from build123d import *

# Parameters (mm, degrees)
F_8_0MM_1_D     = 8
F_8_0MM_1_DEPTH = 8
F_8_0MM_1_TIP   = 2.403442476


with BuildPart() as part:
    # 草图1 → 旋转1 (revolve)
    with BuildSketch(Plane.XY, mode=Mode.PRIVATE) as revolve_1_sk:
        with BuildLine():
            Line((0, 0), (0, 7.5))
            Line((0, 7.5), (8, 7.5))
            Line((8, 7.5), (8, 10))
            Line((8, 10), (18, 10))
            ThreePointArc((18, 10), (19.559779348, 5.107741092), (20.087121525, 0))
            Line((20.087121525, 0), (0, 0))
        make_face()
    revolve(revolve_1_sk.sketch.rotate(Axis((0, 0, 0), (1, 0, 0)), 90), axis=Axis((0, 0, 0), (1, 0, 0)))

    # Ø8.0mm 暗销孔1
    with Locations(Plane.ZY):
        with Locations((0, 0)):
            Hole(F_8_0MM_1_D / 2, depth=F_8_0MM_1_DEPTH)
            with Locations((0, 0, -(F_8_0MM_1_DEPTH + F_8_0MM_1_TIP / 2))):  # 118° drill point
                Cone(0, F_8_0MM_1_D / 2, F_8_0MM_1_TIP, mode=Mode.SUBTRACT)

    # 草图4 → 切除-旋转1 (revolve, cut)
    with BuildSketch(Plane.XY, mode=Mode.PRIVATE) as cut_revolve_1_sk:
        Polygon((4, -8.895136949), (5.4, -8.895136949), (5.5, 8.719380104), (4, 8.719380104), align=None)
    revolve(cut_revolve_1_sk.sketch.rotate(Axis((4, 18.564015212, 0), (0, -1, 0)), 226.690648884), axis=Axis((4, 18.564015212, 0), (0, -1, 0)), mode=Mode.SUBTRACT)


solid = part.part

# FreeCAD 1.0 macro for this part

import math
import FreeCAD as App
import Part
import Sketcher

doc = App.newDocument("Part")
body = doc.addObject("PartDesign::Body", "Body")

sketch1 = body.newObject("Sketcher::SketchObject", "Sketch")
sketch1.AttachmentSupport = (doc.getObject("XY_Plane"), [""])
sketch1.MapMode = "FlatFace"
sketch1.addGeometry([
    Part.LineSegment(App.Vector(0, 7.5, 0), App.Vector(0, 0, 0)),
    Part.LineSegment(App.Vector(0, 0, 0), App.Vector(20.1, 0, 0)),
    Part.ArcOfCircle(Part.Circle(App.Vector(-4.9, 0, 0), App.Vector(0, 0, 1), 25), math.radians(0), math.radians(24)),
    Part.LineSegment(App.Vector(18, 10, 0), App.Vector(8, 10, 0)),
    Part.LineSegment(App.Vector(8, 10, 0), App.Vector(8, 7.5, 0)),
    Part.LineSegment(App.Vector(8, 7.5, 0), App.Vector(0, 7.5, 0)),
], False)
sketch1.addConstraint([
    Sketcher.Constraint("Coincident", 0, 2, 1, 1),
    Sketcher.Constraint("Coincident", 1, 2, 2, 1),
    Sketcher.Constraint("Coincident", 2, 2, 3, 1),
    Sketcher.Constraint("Coincident", 3, 2, 4, 1),
    Sketcher.Constraint("Coincident", 4, 2, 5, 1),
    Sketcher.Constraint("Coincident", 5, 2, 0, 1),
    Sketcher.Constraint("Vertical", 0),
    Sketcher.Constraint("Horizontal", 1),
    Sketcher.Constraint("Horizontal", 3),
    Sketcher.Constraint("Vertical", 4),
    Sketcher.Constraint("Horizontal", 5),
    Sketcher.Constraint("Coincident", 0, 2, -1, 1),
    Sketcher.Constraint("PointOnObject", 2, 3, -1),
    Sketcher.Constraint("Radius", 2, 25.0),
    Sketcher.Constraint("DistanceX", 3, 2, 3, 1, 10.0),
    Sketcher.Constraint("DistanceX", 5, 2, 5, 1, 8.0),
    Sketcher.Constraint("DistanceY", 0, 2, 0, 1, 7.5),
    Sketcher.Constraint("DistanceY", 4, 2, 4, 1, 2.5),
])
revolution = body.newObject("PartDesign::Revolution", "Revolution")
revolution.Profile = sketch1
revolution.ReferenceAxis = (sketch1, ["H_Axis"])
revolution.Angle = 360

sketch2 = body.newObject("Sketcher::SketchObject", "Sketch001")
sketch2.AttachmentSupport = (doc.getObject("YZ_Plane"), [""])
sketch2.MapMode = "FlatFace"
sketch2.addGeometry(Part.Circle(App.Vector(0, 0, 0), App.Vector(0, 0, 1), 4), False)
sketch2.addConstraint([
    Sketcher.Constraint("Coincident", 0, 3, -1, 1),
    Sketcher.Constraint("Diameter", 0, 8.0),
])
doc.recompute()
hole = body.newObject("PartDesign::Hole", "Hole")
hole.Profile = sketch2
hole.ThreadType = "None"
hole.Diameter = 8
hole.DepthType = "Dimension"
hole.Depth = 8
hole.DrillPoint = "Angled"
hole.DrillPointAngle = 118
hole.Reversed = True

sketch3 = body.newObject("Sketcher::SketchObject", "Sketch002")
sketch3.AttachmentSupport = (doc.getObject("XY_Plane"), [""])
sketch3.MapMode = "FlatFace"
sketch3.addGeometry([
    Part.LineSegment(App.Vector(4, -8.9, 0), App.Vector(5.4, -8.9, 0)),
    Part.LineSegment(App.Vector(5.4, -8.9, 0), App.Vector(5.5, 8.7, 0)),
    Part.LineSegment(App.Vector(5.5, 8.7, 0), App.Vector(4, 8.7, 0)),
    Part.LineSegment(App.Vector(4, 8.7, 0), App.Vector(4, -8.9, 0)),
], False)
sketch3.addGeometry(Part.LineSegment(App.Vector(4, 8.7, 0), App.Vector(4, -8.9, 0)), True)
sketch3.addConstraint([
    Sketcher.Constraint("Coincident", 0, 2, 1, 1),
    Sketcher.Constraint("Coincident", 1, 2, 2, 1),
    Sketcher.Constraint("Coincident", 2, 2, 3, 1),
    Sketcher.Constraint("Coincident", 3, 2, 0, 1),
    Sketcher.Constraint("Horizontal", 0),
    Sketcher.Constraint("Horizontal", 2),
    Sketcher.Constraint("Vertical", 3),
    Sketcher.Constraint("Vertical", 4),
    Sketcher.Constraint("Coincident", 4, 1, 2, 2),
    Sketcher.Constraint("Horizontal", 0, 2, 4, 2),
    Sketcher.Constraint("DistanceX", 0, 1, 0, 2, 1.4),
    Sketcher.Constraint("DistanceX", 2, 2, 2, 1, 1.5),
    Sketcher.Constraint("DistanceX", -1, 1, 2, 2, 4.0),
    Sketcher.Constraint("Distance", 1, 17.614801),
    Sketcher.Constraint("DistanceY", -1, 1, 1, 2, 8.71938),
])
groove = body.newObject("PartDesign::Groove", "Groove")
groove.Profile = sketch3
groove.ReferenceAxis = (sketch3, ["Axis0"])
groove.Angle = 360

doc.recompute()
